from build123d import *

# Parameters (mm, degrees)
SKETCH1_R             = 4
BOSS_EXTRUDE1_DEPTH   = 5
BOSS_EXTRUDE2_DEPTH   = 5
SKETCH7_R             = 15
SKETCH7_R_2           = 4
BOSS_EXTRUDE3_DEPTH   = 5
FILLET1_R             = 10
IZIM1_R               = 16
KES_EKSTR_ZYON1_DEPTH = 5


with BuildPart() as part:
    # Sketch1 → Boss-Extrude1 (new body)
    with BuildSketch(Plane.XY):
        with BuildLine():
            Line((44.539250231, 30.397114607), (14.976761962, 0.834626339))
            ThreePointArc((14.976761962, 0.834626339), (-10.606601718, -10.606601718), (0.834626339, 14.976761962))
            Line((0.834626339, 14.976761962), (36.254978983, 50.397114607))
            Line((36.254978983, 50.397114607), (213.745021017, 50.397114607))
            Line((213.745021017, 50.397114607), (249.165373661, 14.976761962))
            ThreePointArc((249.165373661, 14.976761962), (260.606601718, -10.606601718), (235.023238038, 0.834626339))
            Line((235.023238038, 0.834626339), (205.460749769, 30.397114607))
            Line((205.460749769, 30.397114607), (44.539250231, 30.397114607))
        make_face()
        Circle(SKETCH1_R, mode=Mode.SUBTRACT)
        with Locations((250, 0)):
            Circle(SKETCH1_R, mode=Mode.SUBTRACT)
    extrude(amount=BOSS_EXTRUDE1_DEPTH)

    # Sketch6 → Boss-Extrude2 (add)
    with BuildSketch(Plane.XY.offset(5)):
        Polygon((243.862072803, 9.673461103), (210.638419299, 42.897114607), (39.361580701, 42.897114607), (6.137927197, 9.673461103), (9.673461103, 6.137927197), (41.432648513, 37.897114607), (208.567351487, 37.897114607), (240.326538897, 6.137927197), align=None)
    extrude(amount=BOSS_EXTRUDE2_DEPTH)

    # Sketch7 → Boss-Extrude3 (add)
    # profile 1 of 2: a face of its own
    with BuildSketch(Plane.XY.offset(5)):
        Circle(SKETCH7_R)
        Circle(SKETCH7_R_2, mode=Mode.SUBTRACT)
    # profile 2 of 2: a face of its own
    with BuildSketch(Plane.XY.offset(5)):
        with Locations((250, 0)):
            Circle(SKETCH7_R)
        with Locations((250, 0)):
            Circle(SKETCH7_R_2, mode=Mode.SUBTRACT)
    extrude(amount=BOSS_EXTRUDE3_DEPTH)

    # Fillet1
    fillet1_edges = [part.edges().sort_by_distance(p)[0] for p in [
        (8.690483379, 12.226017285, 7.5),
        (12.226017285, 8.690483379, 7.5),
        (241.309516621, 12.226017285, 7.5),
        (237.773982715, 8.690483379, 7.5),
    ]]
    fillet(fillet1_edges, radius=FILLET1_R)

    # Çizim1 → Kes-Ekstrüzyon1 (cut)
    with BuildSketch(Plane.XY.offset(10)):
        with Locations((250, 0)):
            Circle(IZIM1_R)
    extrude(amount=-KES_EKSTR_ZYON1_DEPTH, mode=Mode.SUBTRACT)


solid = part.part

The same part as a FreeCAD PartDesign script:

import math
import FreeCAD as App
import Part
import Sketcher

V = App.Vector
Q = App.Units.Quantity


def edges_at(feature, points):
    """Names of the edges that pass closest to the given points."""
    edges = feature.Shape.Edges
    near = lambda p: min(range(len(edges)), key=lambda i: edges[i].distToShape(Part.Vertex(*p))[0])
    return sorted({f"Edge{near(p) + 1}" for p in points})


def add_polygon(sketch, points):
    """Adds a closed chain of lines whose ends are joined by coincident constraints."""
    first, n = sketch.GeometryCount, len(points)
    for a, b in zip(points, points[1:] + points[:1]):
        sketch.addGeometry(Part.LineSegment(App.Vector(*a, 0), App.Vector(*b, 0)), False)
    for i in range(n):
        sketch.addConstraint(Sketcher.Constraint("Coincident", first + i, 2, first + (i + 1) % n, 1))

doc = App.newDocument("Part")
body = doc.addObject("PartDesign::Body", "Body")

# Sketch on XY plane
sketch1 = body.newObject("Sketcher::SketchObject", "Sketch")
sketch1.AttachmentSupport = (doc.getObject("XY_Plane"), [""])
sketch1.MapMode = "FlatFace"
sketch1.addGeometry(Part.LineSegment(V(14.976762, 0.834626, 0), V(44.53925, 30.397115, 0)), False)
sketch1.addGeometry(Part.LineSegment(V(44.53925, 30.397115, 0), V(205.46075, 30.397115, 0)), False)
sketch1.addGeometry(Part.LineSegment(V(205.46075, 30.397115, 0), V(235.023238, 0.834626, 0)), False)
sketch1.addGeometry(Part.ArcOfCircle(Part.Circle(V(250, 0, 0), V(0, 0, 1), 15), math.radians(176.810315), math.radians(453.189685)), False)
sketch1.addGeometry(Part.LineSegment(V(249.165374, 14.976762, 0), V(213.745021, 50.397115, 0)), False)
sketch1.addGeometry(Part.LineSegment(V(213.745021, 50.397115, 0), V(36.254979, 50.397115, 0)), False)
sketch1.addGeometry(Part.LineSegment(V(36.254979, 50.397115, 0), V(0.834626, 14.976762, 0)), False)
sketch1.addGeometry(Part.ArcOfCircle(Part.Circle(V(0, 0, 0), V(0, 0, 1), 15), math.radians(86.810315), math.radians(363.189685)), False)
sketch1.addGeometry(Part.Circle(V(250, 0, 0), V(0, 0, 1), 4), False)
sketch1.addGeometry(Part.Circle(V(0, 0, 0), V(0, 0, 1), 4), False)
sketch1.addConstraint(Sketcher.Constraint("Coincident", 0, 2, 1, 1))
sketch1.addConstraint(Sketcher.Constraint("Coincident", 1, 2, 2, 1))
sketch1.addConstraint(Sketcher.Constraint("Coincident", 2, 2, 3, 1))
sketch1.addConstraint(Sketcher.Constraint("Coincident", 3, 2, 4, 1))
sketch1.addConstraint(Sketcher.Constraint("Coincident", 4, 2, 5, 1))
sketch1.addConstraint(Sketcher.Constraint("Coincident", 5, 2, 6, 1))
sketch1.addConstraint(Sketcher.Constraint("Coincident", 6, 2, 7, 1))
sketch1.addConstraint(Sketcher.Constraint("Coincident", 7, 2, 0, 1))
sketch1.addConstraint(Sketcher.Constraint("Horizontal", 1))
sketch1.addConstraint(Sketcher.Constraint("Horizontal", 5))
sketch1.addConstraint(Sketcher.Constraint("Coincident", 7, 3, -1, 1))
sketch1.addConstraint(Sketcher.Constraint("Coincident", 9, 3, -1, 1))
sketch1.addConstraint(Sketcher.Constraint("Coincident", 8, 3, 3, 3))
sketch1.addConstraint(Sketcher.Constraint("Equal", 3, 7))
sketch1.addConstraint(Sketcher.Constraint("Equal", 8, 9))
sketch1.addConstraint(Sketcher.Constraint("PointOnObject", 3, 3, -1))
sketch1.addConstraint(Sketcher.Constraint("Perpendicular", 0, 2))
sketch1.addConstraint(Sketcher.Constraint("Parallel", 2, 4))
sketch1.addConstraint(Sketcher.Constraint("Perpendicular", 4, 6))
sketch1.addConstraint(Sketcher.Constraint("Horizontal", 3, 2, 6, 2))
sketch1.addConstraint(Sketcher.Constraint("Horizontal", 2, 2, 7, 2))
sketch1.addConstraint(Sketcher.Constraint("Equal", 0, 2))
sketch1.addConstraint(Sketcher.Constraint("Diameter", 8, Q("8 mm")))
sketch1.addConstraint(Sketcher.Constraint("Radius", 3, Q("15 mm")))
sketch1.addConstraint(Sketcher.Constraint("DistanceX", -1, 1, 3, 3, Q("250 mm")))
sketch1.addConstraint(Sketcher.Constraint("DistanceY", 1, 2, 4, 2, Q("20 mm")))
sketch1.addConstraint(Sketcher.Constraint("DistanceX", 1, 1, 1, 2, Q("160.9215 mm")))
sketch1.addConstraint(Sketcher.Constraint("Distance", 0, Q("41.807672 mm")))
sketch1.addConstraint(Sketcher.Constraint("DistanceX", 5, 2, 5, 1, Q("177.490042 mm")))
pad1 = body.newObject("PartDesign::Pad", "Pad")
pad1.Profile = sketch1
pad1.Length = 5

# Sketch on XY plane
sketch2 = body.newObject("Sketcher::SketchObject", "Sketch001")
sketch2.AttachmentSupport = (doc.getObject("XY_Plane"), [""])
sketch2.MapMode = "FlatFace"
sketch2.AttachmentOffset = App.Placement(V(0, 0, 5), App.Rotation())
add_polygon(sketch2, [(243.862073, 9.673461), (210.638419, 42.897115), (39.361581, 42.897115), (6.137927, 9.673461), (9.673461, 6.137927), (41.432649, 37.897115), (208.567351, 37.897115), (240.326539, 6.137927)])  # lines 0-7
sketch2.addConstraint(Sketcher.Constraint("Horizontal", 1))
sketch2.addConstraint(Sketcher.Constraint("Horizontal", 5))
sketch2.addConstraint(Sketcher.Constraint("Perpendicular", 0, 2))
sketch2.addConstraint(Sketcher.Constraint("Perpendicular", 2, 3))
sketch2.addConstraint(Sketcher.Constraint("Perpendicular", 3, 4))
sketch2.addConstraint(Sketcher.Constraint("Perpendicular", 4, 6))
sketch2.addConstraint(Sketcher.Constraint("Perpendicular", 6, 7))
sketch2.addConstraint(Sketcher.Constraint("Horizontal", 3, 2, 6, 2))
sketch2.addConstraint(Sketcher.Constraint("Horizontal", 2, 2, 7, 2))
sketch2.addConstraint(Sketcher.Constraint("Equal", 0, 2))
sketch2.addConstraint(Sketcher.Constraint("Distance", 3, Q("5 mm")))
sketch2.addConstraint(Sketcher.Constraint("DistanceY", 4, 2, 1, 2, Q("5 mm")))
sketch2.addConstraint(Sketcher.Constraint("DistanceX", 1, 2, 1, 1, Q("171.276839 mm")))
sketch2.addConstraint(Sketcher.Constraint("Distance", 0, Q("46.985341 mm")))
sketch2.addConstraint(Sketcher.Constraint("DistanceX", -1, 1, 0, 2, Q("210.638419 mm")))
sketch2.addConstraint(Sketcher.Constraint("DistanceY", -1, 1, 2, 2, Q("9.673461 mm")))
pad2 = body.newObject("PartDesign::Pad", "Pad001")
pad2.Profile = sketch2
pad2.Length = 5

# Sketch on XY plane
sketch3 = body.newObject("Sketcher::SketchObject", "Sketch002")
sketch3.AttachmentSupport = (doc.getObject("XY_Plane"), [""])
sketch3.MapMode = "FlatFace"
sketch3.AttachmentOffset = App.Placement(V(0, 0, 5), App.Rotation())
sketch3.addGeometry(Part.Circle(V(0, 0, 0), V(0, 0, 1), 15), False)
sketch3.addGeometry(Part.Circle(V(0, 0, 0), V(0, 0, 1), 4), False)
sketch3.addGeometry(Part.Circle(V(250, 0, 0), V(0, 0, 1), 15), False)
sketch3.addGeometry(Part.Circle(V(250, 0, 0), V(0, 0, 1), 4), False)
sketch3.addConstraint(Sketcher.Constraint("Coincident", 0, 3, -1, 1))
sketch3.addConstraint(Sketcher.Constraint("Coincident", 1, 3, -1, 1))
sketch3.addConstraint(Sketcher.Constraint("Coincident", 3, 3, 2, 3))
sketch3.addConstraint(Sketcher.Constraint("Equal", 0, 2))
sketch3.addConstraint(Sketcher.Constraint("Equal", 1, 3))
sketch3.addConstraint(Sketcher.Constraint("PointOnObject", 2, 3, -1))
sketch3.addConstraint(Sketcher.Constraint("Diameter", 0, Q("30 mm")))
sketch3.addConstraint(Sketcher.Constraint("Diameter", 1, Q("8 mm")))
sketch3.addConstraint(Sketcher.Constraint("DistanceX", -1, 1, 2, 3, Q("250 mm")))
pad3 = body.newObject("PartDesign::Pad", "Pad002")
pad3.Profile = sketch3
pad3.Length = 5
doc.recompute()

fillet = body.newObject("PartDesign::Fillet", "Fillet")
fillet.Base = (pad3, edges_at(pad3, [
    (8.69, 12.226, 7.5),
    (12.226, 8.69, 7.5),
    (241.31, 12.226, 7.5),
    (237.774, 8.69, 7.5),
]))
fillet.Radius = 10

# Sketch on XY plane
sketch4 = body.newObject("Sketcher::SketchObject", "Sketch003")
sketch4.AttachmentSupport = (doc.getObject("XY_Plane"), [""])
sketch4.MapMode = "FlatFace"
sketch4.AttachmentOffset = App.Placement(V(0, 0, 10), App.Rotation())
sketch4.addGeometry(Part.Circle(V(250, 0, 0), V(0, 0, 1), 16), False)
sketch4.addConstraint(Sketcher.Constraint("PointOnObject", 0, 3, -1))
sketch4.addConstraint(Sketcher.Constraint("Diameter", 0, Q("32 mm")))
sketch4.addConstraint(Sketcher.Constraint("DistanceX", -1, 1, 0, 3, Q("250 mm")))
pocket1 = body.newObject("PartDesign::Pocket", "Pocket")
pocket1.Profile = sketch4
pocket1.Length = 5

doc.recompute()
